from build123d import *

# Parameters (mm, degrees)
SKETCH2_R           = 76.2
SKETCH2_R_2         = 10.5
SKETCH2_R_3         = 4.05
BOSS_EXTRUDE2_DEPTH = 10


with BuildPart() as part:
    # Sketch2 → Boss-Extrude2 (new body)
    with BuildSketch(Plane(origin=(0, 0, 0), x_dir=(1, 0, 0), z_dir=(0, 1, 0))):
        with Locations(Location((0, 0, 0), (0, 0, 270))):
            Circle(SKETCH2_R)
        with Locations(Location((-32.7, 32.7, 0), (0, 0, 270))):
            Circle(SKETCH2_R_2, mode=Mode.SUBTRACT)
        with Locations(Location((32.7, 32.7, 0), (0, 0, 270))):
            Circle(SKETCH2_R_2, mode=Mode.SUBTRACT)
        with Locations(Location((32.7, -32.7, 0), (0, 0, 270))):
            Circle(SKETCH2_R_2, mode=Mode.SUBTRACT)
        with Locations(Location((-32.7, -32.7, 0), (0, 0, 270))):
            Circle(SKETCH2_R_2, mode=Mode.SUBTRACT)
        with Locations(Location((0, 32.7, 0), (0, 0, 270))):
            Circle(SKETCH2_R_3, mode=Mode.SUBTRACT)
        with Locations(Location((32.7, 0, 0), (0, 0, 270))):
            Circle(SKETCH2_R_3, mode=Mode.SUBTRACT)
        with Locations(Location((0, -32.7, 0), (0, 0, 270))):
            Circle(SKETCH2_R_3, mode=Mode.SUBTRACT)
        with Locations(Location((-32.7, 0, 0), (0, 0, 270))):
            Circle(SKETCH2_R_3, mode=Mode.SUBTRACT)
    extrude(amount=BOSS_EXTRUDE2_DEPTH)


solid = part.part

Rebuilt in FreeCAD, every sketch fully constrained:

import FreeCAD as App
import Part
import Sketcher

V = App.Vector
Q = App.Units.Quantity

doc = App.newDocument("Part")
body = doc.addObject("PartDesign::Body", "Body")

sketch1 = doc.addObject("Sketcher::SketchObject", "Sketch")
body.addObject(sketch1)
sketch1.AttachmentSupport = (doc.XZ_Plane, [""])
sketch1.MapMode = "FlatFace"
sketch1.addGeometry([
    Part.Circle(V(0, 0, 0), V(0, 0, 1), 76.2),
    Part.Circle(V(-32.7, -32.7, 0), V(0, 0, 1), 10.5),
    Part.Circle(V(0, -32.7, 0), V(0, 0, 1), 4),
    Part.Circle(V(-32.7, 0, 0), V(0, 0, 1), 4),
    Part.Circle(V(-32.7, 32.7, 0), V(0, 0, 1), 10.5),
    Part.Circle(V(32.7, -32.7, 0), V(0, 0, 1), 10.5),
    Part.Circle(V(32.7, 0, 0), V(0, 0, 1), 4),
    Part.Circle(V(0, 32.7, 0), V(0, 0, 1), 4),
    Part.Circle(V(32.7, 32.7, 0), V(0, 0, 1), 10.5),
], False)
sketch1.addConstraint([
    Sketcher.Constraint("Coincident", 0, 3, -1, 1),
    Sketcher.Constraint("Equal", 2, 3),
    Sketcher.Constraint("Equal", 1, 4),
    Sketcher.Constraint("Equal", 4, 5),
    Sketcher.Constraint("Equal", 3, 6),
    Sketcher.Constraint("Equal", 6, 7),
    Sketcher.Constraint("Equal", 5, 8),
    Sketcher.Constraint("Symmetric", 4, 3, 5, 3, -1, 1),
    Sketcher.Constraint("Symmetric", 3, 3, 6, 3, -1, 1),
    Sketcher.Constraint("Symmetric", 2, 3, 7, 3, -1, 1),
    Sketcher.Constraint("Symmetric", 1, 3, 8, 3, -1, 1),
    Sketcher.Constraint("Symmetric", 1, 3, 5, 3, -2),
    Sketcher.Constraint("PointOnObject", 2, 3, -2),
    Sketcher.Constraint("PointOnObject", 3, 3, -1),
    Sketcher.Constraint("Horizontal", 1, 3, 2, 3),
    Sketcher.Constraint("Vertical", 1, 3, 3, 3),
    Sketcher.Constraint("Diameter", 1, Q("21 mm")),
    Sketcher.Constraint("Diameter", 0, Q("152.4 mm")),
    Sketcher.Constraint("Diameter", 2, Q("8.1 mm")),
    Sketcher.Constraint("DistanceX", 1, 3, -1, 1, Q("32.7 mm")),
    Sketcher.Constraint("DistanceY", 1, 3, -1, 1, Q("32.7 mm")),
])
pad1 = doc.addObject("PartDesign::Pad", "Pad")
body.addObject(pad1)
pad1.Profile = sketch1
pad1.Length = 10
pad1.Reversed = True

doc.recompute()
